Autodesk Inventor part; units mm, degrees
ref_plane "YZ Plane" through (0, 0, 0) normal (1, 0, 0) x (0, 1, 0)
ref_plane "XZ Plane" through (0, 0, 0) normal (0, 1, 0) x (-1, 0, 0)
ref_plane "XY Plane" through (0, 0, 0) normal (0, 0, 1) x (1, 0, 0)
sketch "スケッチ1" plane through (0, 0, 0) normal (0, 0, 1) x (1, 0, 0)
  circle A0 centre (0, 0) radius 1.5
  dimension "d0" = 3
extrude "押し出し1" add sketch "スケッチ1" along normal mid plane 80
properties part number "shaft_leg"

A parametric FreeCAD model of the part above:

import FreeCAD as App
import Part
import Sketcher

doc = App.newDocument("Part")
body = doc.addObject("PartDesign::Body", "Body")

sketch1 = body.newObject("Sketcher::SketchObject", "Sketch")
sketch1.AttachmentSupport = (doc.getObject("XY_Plane"), [""])
sketch1.MapMode = "FlatFace"
sketch1.addGeometry(Part.Circle(App.Vector(0, 0, 0), App.Vector(0, 0, 1), 1.5), False)
sketch1.addConstraint([
    Sketcher.Constraint("Coincident", 0, 3, -1, 1),
    Sketcher.Constraint("Diameter", 0, 3.0),
])
pad1 = body.newObject("PartDesign::Pad", "Pad")
pad1.Profile = sketch1
pad1.Length = 80
pad1.Midplane = True

doc.recompute()
